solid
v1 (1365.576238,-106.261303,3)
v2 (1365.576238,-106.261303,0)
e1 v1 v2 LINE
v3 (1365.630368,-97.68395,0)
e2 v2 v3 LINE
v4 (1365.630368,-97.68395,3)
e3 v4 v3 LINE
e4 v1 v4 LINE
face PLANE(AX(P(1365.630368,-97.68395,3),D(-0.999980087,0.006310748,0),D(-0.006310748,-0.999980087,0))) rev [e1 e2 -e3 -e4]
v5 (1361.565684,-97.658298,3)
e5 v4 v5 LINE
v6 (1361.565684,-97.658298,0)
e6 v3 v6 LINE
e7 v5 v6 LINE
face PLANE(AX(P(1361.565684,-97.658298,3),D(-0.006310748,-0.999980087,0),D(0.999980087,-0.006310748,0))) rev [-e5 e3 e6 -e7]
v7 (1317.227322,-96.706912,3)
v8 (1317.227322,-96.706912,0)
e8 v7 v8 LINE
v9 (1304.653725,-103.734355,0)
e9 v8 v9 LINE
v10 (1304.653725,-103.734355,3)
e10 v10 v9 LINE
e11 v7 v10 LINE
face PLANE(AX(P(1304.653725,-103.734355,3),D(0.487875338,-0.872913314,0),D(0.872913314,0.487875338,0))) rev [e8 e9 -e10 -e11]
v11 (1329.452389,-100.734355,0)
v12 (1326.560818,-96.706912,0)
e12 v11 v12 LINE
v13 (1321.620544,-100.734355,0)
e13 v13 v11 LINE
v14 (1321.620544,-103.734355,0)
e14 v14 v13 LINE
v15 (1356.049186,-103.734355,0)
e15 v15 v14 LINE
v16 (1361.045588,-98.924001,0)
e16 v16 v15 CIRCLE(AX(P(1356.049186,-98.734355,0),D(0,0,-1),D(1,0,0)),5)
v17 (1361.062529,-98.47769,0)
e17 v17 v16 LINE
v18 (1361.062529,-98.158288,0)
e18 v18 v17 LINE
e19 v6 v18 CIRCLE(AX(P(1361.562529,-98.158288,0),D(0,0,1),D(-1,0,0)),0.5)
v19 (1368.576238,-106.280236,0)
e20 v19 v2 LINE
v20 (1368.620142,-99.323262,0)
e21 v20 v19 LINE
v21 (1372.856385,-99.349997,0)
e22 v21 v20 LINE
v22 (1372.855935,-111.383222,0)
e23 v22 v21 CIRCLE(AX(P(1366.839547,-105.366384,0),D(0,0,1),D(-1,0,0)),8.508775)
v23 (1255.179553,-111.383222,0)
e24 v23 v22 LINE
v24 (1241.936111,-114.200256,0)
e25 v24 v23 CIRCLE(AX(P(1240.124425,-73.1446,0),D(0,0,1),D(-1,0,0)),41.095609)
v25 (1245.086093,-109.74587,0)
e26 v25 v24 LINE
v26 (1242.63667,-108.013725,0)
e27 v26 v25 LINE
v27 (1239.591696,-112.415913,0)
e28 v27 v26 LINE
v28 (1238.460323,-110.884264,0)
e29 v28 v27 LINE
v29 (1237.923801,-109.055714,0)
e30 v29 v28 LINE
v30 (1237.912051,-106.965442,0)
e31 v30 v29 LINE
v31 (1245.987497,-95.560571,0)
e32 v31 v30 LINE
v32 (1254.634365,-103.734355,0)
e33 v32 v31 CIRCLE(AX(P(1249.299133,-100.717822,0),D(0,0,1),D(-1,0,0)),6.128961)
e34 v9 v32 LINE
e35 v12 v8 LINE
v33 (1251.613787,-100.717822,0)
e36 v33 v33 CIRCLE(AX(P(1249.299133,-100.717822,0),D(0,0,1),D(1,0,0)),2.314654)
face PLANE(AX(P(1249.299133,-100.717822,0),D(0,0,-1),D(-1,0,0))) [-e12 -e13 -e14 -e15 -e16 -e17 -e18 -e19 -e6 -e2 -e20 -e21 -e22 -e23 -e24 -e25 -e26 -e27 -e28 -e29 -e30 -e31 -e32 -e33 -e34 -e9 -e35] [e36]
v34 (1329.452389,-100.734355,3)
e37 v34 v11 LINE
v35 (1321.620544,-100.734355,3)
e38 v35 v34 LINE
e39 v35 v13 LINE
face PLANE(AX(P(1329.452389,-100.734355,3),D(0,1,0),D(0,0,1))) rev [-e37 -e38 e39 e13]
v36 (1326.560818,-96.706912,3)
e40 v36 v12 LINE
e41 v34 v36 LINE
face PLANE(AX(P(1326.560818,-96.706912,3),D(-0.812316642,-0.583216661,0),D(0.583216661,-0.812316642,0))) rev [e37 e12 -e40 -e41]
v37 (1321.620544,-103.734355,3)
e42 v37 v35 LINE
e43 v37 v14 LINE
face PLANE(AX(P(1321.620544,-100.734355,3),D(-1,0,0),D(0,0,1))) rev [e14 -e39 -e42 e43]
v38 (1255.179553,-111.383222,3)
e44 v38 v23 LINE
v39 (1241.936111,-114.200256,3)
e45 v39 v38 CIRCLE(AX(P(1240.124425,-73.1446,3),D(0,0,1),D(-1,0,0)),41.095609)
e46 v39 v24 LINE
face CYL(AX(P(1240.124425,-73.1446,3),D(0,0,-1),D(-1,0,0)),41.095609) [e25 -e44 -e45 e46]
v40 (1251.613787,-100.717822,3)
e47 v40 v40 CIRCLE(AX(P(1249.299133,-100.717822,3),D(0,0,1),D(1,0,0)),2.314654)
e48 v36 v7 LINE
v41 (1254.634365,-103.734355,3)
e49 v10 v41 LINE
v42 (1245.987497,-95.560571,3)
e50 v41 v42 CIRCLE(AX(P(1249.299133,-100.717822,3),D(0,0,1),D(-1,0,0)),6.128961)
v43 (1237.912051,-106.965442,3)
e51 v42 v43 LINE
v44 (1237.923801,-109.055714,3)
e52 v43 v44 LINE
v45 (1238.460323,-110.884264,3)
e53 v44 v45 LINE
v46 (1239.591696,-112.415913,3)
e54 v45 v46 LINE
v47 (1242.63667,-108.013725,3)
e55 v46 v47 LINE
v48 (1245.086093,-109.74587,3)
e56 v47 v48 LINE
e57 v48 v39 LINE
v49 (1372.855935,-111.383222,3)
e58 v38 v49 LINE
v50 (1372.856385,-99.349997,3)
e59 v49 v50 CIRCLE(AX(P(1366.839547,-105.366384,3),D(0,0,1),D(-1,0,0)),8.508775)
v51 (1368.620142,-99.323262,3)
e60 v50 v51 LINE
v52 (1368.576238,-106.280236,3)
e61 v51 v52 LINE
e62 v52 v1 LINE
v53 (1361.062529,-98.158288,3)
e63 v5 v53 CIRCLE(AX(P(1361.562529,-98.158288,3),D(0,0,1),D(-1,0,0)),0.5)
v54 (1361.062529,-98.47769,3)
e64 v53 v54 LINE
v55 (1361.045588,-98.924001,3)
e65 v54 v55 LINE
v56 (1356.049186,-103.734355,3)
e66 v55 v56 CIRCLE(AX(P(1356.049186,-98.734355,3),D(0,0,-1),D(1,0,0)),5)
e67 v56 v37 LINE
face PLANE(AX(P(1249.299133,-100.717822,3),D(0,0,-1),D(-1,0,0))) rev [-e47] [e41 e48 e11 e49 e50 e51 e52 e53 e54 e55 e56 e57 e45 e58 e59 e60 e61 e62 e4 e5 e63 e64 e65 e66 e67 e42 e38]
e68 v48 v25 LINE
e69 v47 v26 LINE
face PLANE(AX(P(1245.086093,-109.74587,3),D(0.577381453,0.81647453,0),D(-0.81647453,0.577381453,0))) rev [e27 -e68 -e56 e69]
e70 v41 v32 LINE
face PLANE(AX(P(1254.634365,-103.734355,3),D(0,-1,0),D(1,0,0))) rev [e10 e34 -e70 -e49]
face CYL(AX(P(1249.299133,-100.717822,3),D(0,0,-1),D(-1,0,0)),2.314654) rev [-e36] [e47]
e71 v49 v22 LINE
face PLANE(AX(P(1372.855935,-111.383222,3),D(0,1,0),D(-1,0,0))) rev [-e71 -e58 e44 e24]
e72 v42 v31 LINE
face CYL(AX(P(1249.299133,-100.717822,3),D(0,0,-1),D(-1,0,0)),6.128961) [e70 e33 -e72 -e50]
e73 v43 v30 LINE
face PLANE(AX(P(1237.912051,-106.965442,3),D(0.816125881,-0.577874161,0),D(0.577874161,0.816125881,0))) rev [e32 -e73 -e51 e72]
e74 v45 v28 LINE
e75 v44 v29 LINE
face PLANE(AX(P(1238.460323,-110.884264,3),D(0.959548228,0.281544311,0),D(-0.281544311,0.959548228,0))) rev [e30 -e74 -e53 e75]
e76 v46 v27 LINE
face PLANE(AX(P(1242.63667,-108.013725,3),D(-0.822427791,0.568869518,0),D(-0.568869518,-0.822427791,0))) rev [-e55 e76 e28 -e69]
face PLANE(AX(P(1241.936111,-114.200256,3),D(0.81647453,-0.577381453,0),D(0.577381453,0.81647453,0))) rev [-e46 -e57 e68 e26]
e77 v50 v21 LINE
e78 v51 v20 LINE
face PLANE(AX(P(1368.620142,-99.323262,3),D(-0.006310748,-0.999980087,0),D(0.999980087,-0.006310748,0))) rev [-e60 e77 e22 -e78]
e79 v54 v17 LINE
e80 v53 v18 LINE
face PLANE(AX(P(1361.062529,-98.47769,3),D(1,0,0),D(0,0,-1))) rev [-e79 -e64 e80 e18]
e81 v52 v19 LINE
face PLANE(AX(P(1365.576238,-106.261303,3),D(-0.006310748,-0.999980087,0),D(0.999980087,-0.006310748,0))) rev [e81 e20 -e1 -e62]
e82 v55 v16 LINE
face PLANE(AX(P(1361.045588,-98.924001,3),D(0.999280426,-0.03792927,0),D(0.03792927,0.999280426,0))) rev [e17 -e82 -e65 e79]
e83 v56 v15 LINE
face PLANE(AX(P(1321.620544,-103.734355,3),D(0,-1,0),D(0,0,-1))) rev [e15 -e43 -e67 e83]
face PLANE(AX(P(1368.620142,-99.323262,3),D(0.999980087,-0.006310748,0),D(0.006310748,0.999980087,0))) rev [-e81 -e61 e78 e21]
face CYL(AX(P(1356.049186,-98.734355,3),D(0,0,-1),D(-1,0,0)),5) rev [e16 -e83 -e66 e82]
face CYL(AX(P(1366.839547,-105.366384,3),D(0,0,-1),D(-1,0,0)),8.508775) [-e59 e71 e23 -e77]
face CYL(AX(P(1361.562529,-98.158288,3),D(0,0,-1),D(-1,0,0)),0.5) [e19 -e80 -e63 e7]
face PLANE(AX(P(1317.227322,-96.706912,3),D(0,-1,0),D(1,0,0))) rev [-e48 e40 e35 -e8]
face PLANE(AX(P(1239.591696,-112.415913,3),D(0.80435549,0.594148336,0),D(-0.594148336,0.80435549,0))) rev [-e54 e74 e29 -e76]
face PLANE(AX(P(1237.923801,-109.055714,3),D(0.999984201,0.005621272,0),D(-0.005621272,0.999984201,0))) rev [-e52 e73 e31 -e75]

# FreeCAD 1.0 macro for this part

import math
import FreeCAD as App
import Part
import Sketcher
Q = App.Units.Quantity

doc = App.newDocument("Part")
body = doc.addObject("PartDesign::Body", "Body")

# Sketch on XY plane
sketch1 = body.newObject("Sketcher::SketchObject", "Sketch")
sketch1.AttachmentSupport = (doc.getObject("XY_Plane"), [""])
sketch1.MapMode = "FlatFace"
sketch1.addGeometry(Part.LineSegment(App.Vector(1245.987497, -95.560571, 0), App.Vector(1237.912051, -106.965442, 0)), False)
sketch1.addGeometry(Part.LineSegment(App.Vector(1237.912051, -106.965442, 0), App.Vector(1237.923801, -109.055714, 0)), False)
sketch1.addGeometry(Part.LineSegment(App.Vector(1237.923801, -109.055714, 0), App.Vector(1238.460323, -110.884264, 0)), False)
sketch1.addGeometry(Part.LineSegment(App.Vector(1238.460323, -110.884264, 0), App.Vector(1239.591696, -112.415913, 0)), False)
sketch1.addGeometry(Part.LineSegment(App.Vector(1239.591696, -112.415913, 0), App.Vector(1242.63667, -108.013725, 0)), False)
sketch1.addGeometry(Part.LineSegment(App.Vector(1242.63667, -108.013725, 0), App.Vector(1245.086093, -109.74587, 0)), False)
sketch1.addGeometry(Part.LineSegment(App.Vector(1245.086093, -109.74587, 0), App.Vector(1241.936111, -114.200256, 0)), False)
sketch1.addGeometry(Part.ArcOfCircle(Part.Circle(App.Vector(1240.124425, -73.1446, 0), App.Vector(0, 0, 1), 41.095609), math.radians(-87.473316), math.radians(-68.509684)), False)
sketch1.addGeometry(Part.LineSegment(App.Vector(1255.179553, -111.383222, 0), App.Vector(1372.855935, -111.383222, 0)), False)
sketch1.addGeometry(Part.ArcOfCircle(Part.Circle(App.Vector(1366.839547, -105.366384, 0), App.Vector(0, 0, 1), 8.508775), math.radians(-45.002143), math.radians(44.997857)), False)
sketch1.addGeometry(Part.LineSegment(App.Vector(1372.856385, -99.349997, 0), App.Vector(1368.620142, -99.323262, 0)), False)
sketch1.addGeometry(Part.LineSegment(App.Vector(1368.620142, -99.323262, 0), App.Vector(1368.576238, -106.280236, 0)), False)
sketch1.addGeometry(Part.LineSegment(App.Vector(1368.576238, -106.280236, 0), App.Vector(1365.576238, -106.261303, 0)), False)
sketch1.addGeometry(Part.LineSegment(App.Vector(1365.576238, -106.261303, 0), App.Vector(1365.630368, -97.68395, 0)), False)
sketch1.addGeometry(Part.LineSegment(App.Vector(1365.630368, -97.68395, 0), App.Vector(1361.565684, -97.658298, 0)), False)
sketch1.addGeometry(Part.ArcOfCircle(Part.Circle(App.Vector(1361.562529, -98.158288, 0), App.Vector(0, 0, 1), 0.5), math.radians(89.638418), math.radians(180)), False)
sketch1.addGeometry(Part.LineSegment(App.Vector(1361.062529, -98.158288, 0), App.Vector(1361.062529, -98.47769, 0)), False)
sketch1.addGeometry(Part.LineSegment(App.Vector(1361.062529, -98.47769, 0), App.Vector(1361.045588, -98.924001, 0)), False)
sketch1.addGeometry(Part.ArcOfCircle(Part.Circle(App.Vector(1356.049186, -98.734355, 0), App.Vector(0, 0, 1), 5), math.radians(-90), math.radians(-2.173708)), False)
sketch1.addGeometry(Part.LineSegment(App.Vector(1356.049186, -103.734355, 0), App.Vector(1321.620544, -103.734355, 0)), False)
sketch1.addGeometry(Part.LineSegment(App.Vector(1321.620544, -103.734355, 0), App.Vector(1321.620544, -100.734355, 0)), False)
sketch1.addGeometry(Part.LineSegment(App.Vector(1321.620544, -100.734355, 0), App.Vector(1329.452389, -100.734355, 0)), False)
sketch1.addGeometry(Part.LineSegment(App.Vector(1329.452389, -100.734355, 0), App.Vector(1326.560818, -96.706912, 0)), False)
sketch1.addGeometry(Part.LineSegment(App.Vector(1326.560818, -96.706912, 0), App.Vector(1317.227322, -96.706912, 0)), False)
sketch1.addGeometry(Part.LineSegment(App.Vector(1317.227322, -96.706912, 0), App.Vector(1304.653725, -103.734355, 0)), False)
sketch1.addGeometry(Part.LineSegment(App.Vector(1304.653725, -103.734355, 0), App.Vector(1254.634365, -103.734355, 0)), False)
sketch1.addGeometry(Part.ArcOfCircle(Part.Circle(App.Vector(1249.299133, -100.717822, 0), App.Vector(0, 0, 1), 6.128961), math.radians(-29.483756), math.radians(122.705818)), False)
sketch1.addGeometry(Part.Circle(App.Vector(1249.299133, -100.717822, 0), App.Vector(0, 0, 1), 2.314654), False)
sketch1.addConstraint(Sketcher.Constraint("Coincident", 0, 2, 1, 1))
sketch1.addConstraint(Sketcher.Constraint("Coincident", 1, 2, 2, 1))
sketch1.addConstraint(Sketcher.Constraint("Coincident", 2, 2, 3, 1))
sketch1.addConstraint(Sketcher.Constraint("Coincident", 3, 2, 4, 1))
sketch1.addConstraint(Sketcher.Constraint("Coincident", 4, 2, 5, 1))
sketch1.addConstraint(Sketcher.Constraint("Coincident", 5, 2, 6, 1))
sketch1.addConstraint(Sketcher.Constraint("Coincident", 6, 2, 7, 1))
sketch1.addConstraint(Sketcher.Constraint("Coincident", 7, 2, 8, 1))
sketch1.addConstraint(Sketcher.Constraint("Coincident", 8, 2, 9, 1))
sketch1.addConstraint(Sketcher.Constraint("Coincident", 9, 2, 10, 1))
sketch1.addConstraint(Sketcher.Constraint("Coincident", 10, 2, 11, 1))
sketch1.addConstraint(Sketcher.Constraint("Coincident", 11, 2, 12, 1))
sketch1.addConstraint(Sketcher.Constraint("Coincident", 12, 2, 13, 1))
sketch1.addConstraint(Sketcher.Constraint("Coincident", 13, 2, 14, 1))
sketch1.addConstraint(Sketcher.Constraint("Tangent", 14, 2, 15, 1))
sketch1.addConstraint(Sketcher.Constraint("Tangent", 15, 2, 16, 1))
sketch1.addConstraint(Sketcher.Constraint("Coincident", 16, 2, 17, 1))
sketch1.addConstraint(Sketcher.Constraint("Tangent", 17, 2, 18, 2))
sketch1.addConstraint(Sketcher.Constraint("Tangent", 18, 1, 19, 1))
sketch1.addConstraint(Sketcher.Constraint("Coincident", 19, 2, 20, 1))
sketch1.addConstraint(Sketcher.Constraint("Coincident", 20, 2, 21, 1))
sketch1.addConstraint(Sketcher.Constraint("Coincident", 21, 2, 22, 1))
sketch1.addConstraint(Sketcher.Constraint("Coincident", 22, 2, 23, 1))
sketch1.addConstraint(Sketcher.Constraint("Coincident", 23, 2, 24, 1))
sketch1.addConstraint(Sketcher.Constraint("Coincident", 24, 2, 25, 1))
sketch1.addConstraint(Sketcher.Constraint("Coincident", 25, 2, 26, 1))
sketch1.addConstraint(Sketcher.Constraint("Coincident", 26, 2, 0, 1))
sketch1.addConstraint(Sketcher.Constraint("Horizontal", 8))
sketch1.addConstraint(Sketcher.Constraint("Vertical", 16))
sketch1.addConstraint(Sketcher.Constraint("Horizontal", 19))
sketch1.addConstraint(Sketcher.Constraint("Vertical", 20))
sketch1.addConstraint(Sketcher.Constraint("Horizontal", 21))
sketch1.addConstraint(Sketcher.Constraint("Horizontal", 23))
sketch1.addConstraint(Sketcher.Constraint("Horizontal", 25))
sketch1.addConstraint(Sketcher.Constraint("Coincident", 27, 3, 26, 3))
sketch1.addConstraint(Sketcher.Constraint("Perpendicular", 5, 6))
sketch1.addConstraint(Sketcher.Constraint("Perpendicular", 10, 11))
sketch1.addConstraint(Sketcher.Constraint("Perpendicular", 11, 12))
sketch1.addConstraint(Sketcher.Constraint("Perpendicular", 12, 13))
sketch1.addConstraint(Sketcher.Constraint("Perpendicular", 13, 14))
sketch1.addConstraint(Sketcher.Constraint("Horizontal", 19, 2, 24, 2))
sketch1.addConstraint(Sketcher.Constraint("Radius", 18, Q("5 mm")))
sketch1.addConstraint(Sketcher.Constraint("Radius", 15, Q("0.5 mm")))
sketch1.addConstraint(Sketcher.Constraint("DistanceY", 20, 1, 20, 2, Q("3 mm")))
sketch1.addConstraint(Sketcher.Constraint("Distance", 5, Q("3 mm")))
sketch1.addConstraint(Sketcher.Constraint("DistanceX", 12, 2, 11, 2, Q("3 mm")))
sketch1.addConstraint(Sketcher.Constraint("Radius", 7, Q("41.095609 mm")))
sketch1.addConstraint(Sketcher.Constraint("Radius", 26, Q("6.128961 mm")))
sketch1.addConstraint(Sketcher.Constraint("Diameter", 27, Q("4.629308 mm")))
sketch1.addConstraint(Sketcher.Constraint("DistanceY", 16, 2, 16, 1, Q("0.319402 mm")))
sketch1.addConstraint(Sketcher.Constraint("DistanceY", 17, 2, -1, 1, Q("98.924001 mm")))
sketch1.addConstraint(Sketcher.Constraint("Radius", 9, Q("8.508775 mm")))
sketch1.addConstraint(Sketcher.Constraint("Distance", 0, Q("13.974402 mm")))
sketch1.addConstraint(Sketcher.Constraint("DistanceX", 8, 1, 8, 2, Q("117.676382 mm")))
sketch1.addConstraint(Sketcher.Constraint("DistanceX", 25, 2, 25, 1, Q("50.01936 mm")))
sketch1.addConstraint(Sketcher.Constraint("DistanceY", 7, 3, -1, 1, Q("73.1446 mm")))
sketch1.addConstraint(Sketcher.Constraint("DistanceX", -1, 1, 1, 2, Q("1237.923801 mm")))
sketch1.addConstraint(Sketcher.Constraint("DistanceY", 3, 2, 1, 2, Q("3.3602 mm")))
sketch1.addConstraint(Sketcher.Constraint("DistanceY", 7, 2, 26, 3, Q("10.6654 mm")))
sketch1.addConstraint(Sketcher.Constraint("DistanceX", 18, 3, 9, 2, Q("16.807199 mm")))
sketch1.addConstraint(Sketcher.Constraint("DistanceX", 21, 2, 17, 2, Q("31.593199 mm")))
sketch1.addConstraint(Sketcher.Constraint("Distance", 22, Q("4.957971 mm")))
sketch1.addConstraint(Sketcher.Constraint("DistanceX", 19, 2, 19, 1, Q("34.428642 mm")))
sketch1.addConstraint(Sketcher.Constraint("DistanceX", 21, 1, 21, 2, Q("7.831845 mm")))
sketch1.addConstraint(Sketcher.Constraint("DistanceX", 23, 2, 23, 1, Q("9.333496 mm")))
sketch1.addConstraint(Sketcher.Constraint("DistanceX", -1, 1, 15, 3, Q("1361.562529 mm")))
sketch1.addConstraint(Sketcher.Constraint("DistanceX", -1, 1, 0, 2, Q("1237.912051 mm")))
sketch1.addConstraint(Sketcher.Constraint("DistanceX", -1, 1, 4, 2, Q("1242.63667 mm")))
sketch1.addConstraint(Sketcher.Constraint("DistanceY", 5, 2, -1, 1, Q("109.74587 mm")))
sketch1.addConstraint(Sketcher.Constraint("DistanceX", -1, 1, 6, 2, Q("1241.936111 mm")))
sketch1.addConstraint(Sketcher.Constraint("DistanceX", -1, 1, 13, 2, Q("1365.630368 mm")))
sketch1.addConstraint(Sketcher.Constraint("DistanceY", 13, 2, -1, 1, Q("97.68395 mm")))
sketch1.addConstraint(Sketcher.Constraint("DistanceY", 16, 2, -1, 1, Q("98.47769 mm")))
sketch1.addConstraint(Sketcher.Constraint("DistanceX", -1, 1, 23, 2, Q("1317.227322 mm")))
sketch1.addConstraint(Sketcher.Constraint("DistanceY", 26, 2, -1, 1, Q("95.560571 mm")))
sketch1.addConstraint(Sketcher.Constraint("DistanceX", 15, 3, 9, 3, Q("5.277019 mm")))
sketch1.addConstraint(Sketcher.Constraint("DistanceY", 9, 3, 18, 3, Q("6.63203 mm")))
sketch1.addConstraint(Sketcher.Constraint("DistanceX", 7, 3, 18, 3, Q("115.924761 mm")))
sketch1.addConstraint(Sketcher.Constraint("DistanceX", 0, 2, 27, 3, Q("11.387081 mm")))
sketch1.addConstraint(Sketcher.Constraint("DistanceY", 1, 2, 0, 2, Q("2.090272 mm")))
sketch1.addConstraint(Sketcher.Constraint("DistanceX", 1, 2, 2, 2, Q("0.536521 mm")))
sketch1.addConstraint(Sketcher.Constraint("DistanceY", 2, 2, 1, 2, Q("1.828551 mm")))
sketch1.addConstraint(Sketcher.Constraint("DistanceX", 9, 3, 11, 2, Q("1.73669 mm")))
sketch1.addConstraint(Sketcher.Constraint("Distance", 3, Q("1.904194 mm")))
pad1 = body.newObject("PartDesign::Pad", "Pad")
pad1.Profile = sketch1
pad1.Length = 3

doc.recompute()
